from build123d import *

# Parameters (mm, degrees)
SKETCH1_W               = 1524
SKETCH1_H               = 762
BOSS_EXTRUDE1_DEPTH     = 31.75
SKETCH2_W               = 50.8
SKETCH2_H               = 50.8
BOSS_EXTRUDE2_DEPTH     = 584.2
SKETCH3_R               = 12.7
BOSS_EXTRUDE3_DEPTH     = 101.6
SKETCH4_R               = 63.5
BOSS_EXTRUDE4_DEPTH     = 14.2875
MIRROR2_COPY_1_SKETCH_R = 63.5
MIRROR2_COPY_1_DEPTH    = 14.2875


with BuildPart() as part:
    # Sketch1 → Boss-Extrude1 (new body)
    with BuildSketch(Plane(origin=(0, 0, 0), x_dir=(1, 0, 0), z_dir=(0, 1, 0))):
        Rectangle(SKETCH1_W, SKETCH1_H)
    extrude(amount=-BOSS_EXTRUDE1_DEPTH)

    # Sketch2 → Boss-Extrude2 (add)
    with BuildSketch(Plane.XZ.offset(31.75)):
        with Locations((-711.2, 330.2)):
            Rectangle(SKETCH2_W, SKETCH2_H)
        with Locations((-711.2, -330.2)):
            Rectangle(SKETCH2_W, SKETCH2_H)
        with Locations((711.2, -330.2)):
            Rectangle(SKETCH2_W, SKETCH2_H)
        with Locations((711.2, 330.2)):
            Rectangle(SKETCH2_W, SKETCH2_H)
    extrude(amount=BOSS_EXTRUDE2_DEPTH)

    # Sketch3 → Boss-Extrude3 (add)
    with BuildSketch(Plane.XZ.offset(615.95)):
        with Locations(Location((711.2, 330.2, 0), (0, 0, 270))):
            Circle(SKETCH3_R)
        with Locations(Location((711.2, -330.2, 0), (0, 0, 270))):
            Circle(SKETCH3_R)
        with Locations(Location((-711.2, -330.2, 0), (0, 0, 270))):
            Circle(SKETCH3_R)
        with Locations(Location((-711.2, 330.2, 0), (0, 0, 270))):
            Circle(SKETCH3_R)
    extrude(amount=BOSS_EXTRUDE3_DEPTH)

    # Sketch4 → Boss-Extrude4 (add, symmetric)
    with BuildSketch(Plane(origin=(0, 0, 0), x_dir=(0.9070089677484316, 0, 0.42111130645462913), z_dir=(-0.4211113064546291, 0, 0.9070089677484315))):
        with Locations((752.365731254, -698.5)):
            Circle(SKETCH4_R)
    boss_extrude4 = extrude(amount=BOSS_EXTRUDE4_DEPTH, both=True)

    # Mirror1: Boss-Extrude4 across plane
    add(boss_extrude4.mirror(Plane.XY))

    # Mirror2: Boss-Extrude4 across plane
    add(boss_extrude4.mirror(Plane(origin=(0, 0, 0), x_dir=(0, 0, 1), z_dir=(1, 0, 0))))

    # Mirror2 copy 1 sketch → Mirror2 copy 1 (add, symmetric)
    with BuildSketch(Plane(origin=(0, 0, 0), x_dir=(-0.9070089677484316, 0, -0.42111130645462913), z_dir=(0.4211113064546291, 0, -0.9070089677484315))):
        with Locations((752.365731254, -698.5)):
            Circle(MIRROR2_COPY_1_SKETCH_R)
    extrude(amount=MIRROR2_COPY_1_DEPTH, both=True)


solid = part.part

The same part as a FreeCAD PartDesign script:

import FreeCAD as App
import Part
import Sketcher

V = App.Vector
Q = App.Units.Quantity


def add_polygon(sketch, points):
    """Adds a closed chain of lines whose ends are joined by coincident constraints."""
    first, n = sketch.GeometryCount, len(points)
    for a, b in zip(points, points[1:] + points[:1]):
        sketch.addGeometry(Part.LineSegment(App.Vector(*a, 0), App.Vector(*b, 0)), False)
    for i in range(n):
        sketch.addConstraint(Sketcher.Constraint("Coincident", first + i, 2, first + (i + 1) % n, 1))

doc = App.newDocument("Part")
body = doc.addObject("PartDesign::Body", "Body")

# Sketch on XZ plane
sketch1 = doc.addObject("Sketcher::SketchObject", "Sketch")
body.addObject(sketch1)
sketch1.AttachmentSupport = (doc.XZ_Plane, [""])
sketch1.MapMode = "FlatFace"
add_polygon(sketch1, [(-762, -381), (-762, 381), (762, 381), (762, -381)])  # lines 0-3
sketch1.addConstraint(Sketcher.Constraint("Vertical", 0))
sketch1.addConstraint(Sketcher.Constraint("Horizontal", 1))
sketch1.addConstraint(Sketcher.Constraint("Vertical", 2))
sketch1.addConstraint(Sketcher.Constraint("Horizontal", 3))
sketch1.addConstraint(Sketcher.Constraint("Symmetric", 0, 2, 2, 2, -1, 1))
sketch1.addConstraint(Sketcher.Constraint("DistanceX", 1, 1, 1, 2, Q("60 in")))
sketch1.addConstraint(Sketcher.Constraint("DistanceY", 0, 1, 0, 2, Q("30 in")))
pad1 = doc.addObject("PartDesign::Pad", "Pad")
body.addObject(pad1)
pad1.Profile = sketch1
pad1.Length = Q("1.25 in")

# Sketch on XZ plane
sketch2 = doc.addObject("Sketcher::SketchObject", "Sketch001")
body.addObject(sketch2)
sketch2.AttachmentSupport = (doc.XZ_Plane, [""])
sketch2.MapMode = "FlatFace"
sketch2.AttachmentOffset = App.Placement(V(0, 0, 1.25 * 25.4), App.Rotation())
add_polygon(sketch2, [(-737, 356), (-737, 305), (-686, 305), (-686, 356)])  # lines 0-3
add_polygon(sketch2, [(-737, -305), (-737, -356), (-686, -356), (-686, -305)])  # lines 4-7
add_polygon(sketch2, [(686, -305), (686, -356), (737, -356), (737, -305)])  # lines 8-11
add_polygon(sketch2, [(686, 356), (686, 305), (737, 305), (737, 356)])  # lines 12-15
sketch2.addConstraint(Sketcher.Constraint("Vertical", 0))
sketch2.addConstraint(Sketcher.Constraint("Horizontal", 1))
sketch2.addConstraint(Sketcher.Constraint("Vertical", 2))
sketch2.addConstraint(Sketcher.Constraint("Horizontal", 3))
sketch2.addConstraint(Sketcher.Constraint("Vertical", 4))
sketch2.addConstraint(Sketcher.Constraint("Horizontal", 5))
sketch2.addConstraint(Sketcher.Constraint("Vertical", 6))
sketch2.addConstraint(Sketcher.Constraint("Horizontal", 7))
sketch2.addConstraint(Sketcher.Constraint("Vertical", 8))
sketch2.addConstraint(Sketcher.Constraint("Horizontal", 9))
sketch2.addConstraint(Sketcher.Constraint("Vertical", 10))
sketch2.addConstraint(Sketcher.Constraint("Horizontal", 11))
sketch2.addConstraint(Sketcher.Constraint("Vertical", 12))
sketch2.addConstraint(Sketcher.Constraint("Horizontal", 13))
sketch2.addConstraint(Sketcher.Constraint("Vertical", 14))
sketch2.addConstraint(Sketcher.Constraint("Horizontal", 15))
sketch2.addConstraint(Sketcher.Constraint("Symmetric", 2, 2, 8, 2, -1, 1))
sketch2.addConstraint(Sketcher.Constraint("Symmetric", 0, 2, 10, 2, -1, 1))
sketch2.addConstraint(Sketcher.Constraint("Symmetric", 6, 2, 12, 2, -1, 1))
sketch2.addConstraint(Sketcher.Constraint("Symmetric", 4, 2, 14, 2, -1, 1))
sketch2.addConstraint(Sketcher.Constraint("Symmetric", 5, 2, 8, 2, -2))
sketch2.addConstraint(Sketcher.Constraint("Symmetric", 7, 2, 10, 2, -2))
sketch2.addConstraint(Sketcher.Constraint("Equal", 15, 0))
sketch2.addConstraint(Sketcher.Constraint("DistanceX", 1, 1, 1, 2, Q("2 in")))
sketch2.addConstraint(Sketcher.Constraint("DistanceX", 0, 2, -1, 1, Q("29 in")))
sketch2.addConstraint(Sketcher.Constraint("DistanceY", -1, 1, 0, 2, Q("12 in")))
pad2 = doc.addObject("PartDesign::Pad", "Pad001")
body.addObject(pad2)
pad2.Profile = sketch2
pad2.Length = Q("23 in")

# Sketch on XZ plane
sketch3 = doc.addObject("Sketcher::SketchObject", "Sketch002")
body.addObject(sketch3)
sketch3.AttachmentSupport = (doc.XZ_Plane, [""])
sketch3.MapMode = "FlatFace"
sketch3.AttachmentOffset = App.Placement(V(0, 0, 24.25 * 25.4), App.Rotation())
sketch3.addGeometry(Part.Circle(V(711, 330, 0), V(0, 0, 1), 13), False)
sketch3.addGeometry(Part.Circle(V(711, -330, 0), V(0, 0, 1), 13), False)
sketch3.addGeometry(Part.Circle(V(-711, -330, 0), V(0, 0, 1), 13), False)
sketch3.addGeometry(Part.Circle(V(-711, 330, 0), V(0, 0, 1), 13), False)
sketch3.addConstraint(Sketcher.Constraint("Equal", 0, 1))
sketch3.addConstraint(Sketcher.Constraint("Equal", 1, 2))
sketch3.addConstraint(Sketcher.Constraint("Equal", 2, 3))
sketch3.addConstraint(Sketcher.Constraint("Symmetric", 0, 3, 2, 3, -1, 1))
sketch3.addConstraint(Sketcher.Constraint("Symmetric", 1, 3, 3, 3, -1, 1))
sketch3.addConstraint(Sketcher.Constraint("Symmetric", 1, 3, 2, 3, -2))
sketch3.addConstraint(Sketcher.Constraint("Diameter", 0, Q("1 in")))
sketch3.addConstraint(Sketcher.Constraint("DistanceX", -1, 1, 0, 3, Q("28 in")))
sketch3.addConstraint(Sketcher.Constraint("DistanceY", -1, 1, 0, 3, Q("13 in")))
pad3 = doc.addObject("PartDesign::Pad", "Pad002")
body.addObject(pad3)
pad3.Profile = sketch3
pad3.Length = Q("4 in")

# Sketch on an angled plane
sketch4 = doc.addObject("Sketcher::SketchObject", "Sketch003")
body.addObject(sketch4)
sketch4.Placement = App.Placement(V(0, 0, 0), App.Rotation(V(0.907008968, 0, 0.421111306), V(0, 1, 0), V(-0.421111306, 0, 0.907008968), "ZXY"))
sketch4.addGeometry(Part.Circle(V(752, -699, 0), V(0, 0, 1), 64), False)
sketch4.addConstraint(Sketcher.Constraint("Diameter", 0, Q("5 in")))
sketch4.addConstraint(Sketcher.Constraint("DistanceY", 0, 3, -1, 1, Q("27.5 in")))
sketch4.addConstraint(Sketcher.Constraint("DistanceX", -1, 1, 0, 3, Q("752.365731 mm")))
pad4 = doc.addObject("PartDesign::Pad", "Pad003")
body.addObject(pad4)
pad4.Profile = sketch4
pad4.Length = Q("1.125 in")
pad4.Midplane = True
doc.recompute()

mirrored = doc.addObject("PartDesign::Mirrored", "Mirrored")
body.addObject(mirrored)
mirrored.Originals = [pad4]
mirrored.MirrorPlane = (doc.XY_Plane, [""])
body.Tip = mirrored
doc.recompute()

mirrored2 = doc.addObject("PartDesign::Mirrored", "Mirrored001")
body.addObject(mirrored2)
mirrored2.Originals = [pad4]
mirrored2.MirrorPlane = (doc.YZ_Plane, [""])
body.Tip = mirrored2

# Sketch on an angled plane
sketch5 = doc.addObject("Sketcher::SketchObject", "Sketch004")
body.addObject(sketch5)
sketch5.Placement = App.Placement(V(0, 0, 0), App.Rotation(V(-0.907008968, 0, -0.421111306), V(0, 1, 0), V(0.421111306, 0, -0.907008968), "ZXY"))
sketch5.addGeometry(Part.Circle(V(752, -699, 0), V(0, 0, 1), 64), False)
sketch5.addConstraint(Sketcher.Constraint("Diameter", 0, Q("5 in")))
sketch5.addConstraint(Sketcher.Constraint("DistanceY", 0, 3, -1, 1, Q("27.5 in")))
sketch5.addConstraint(Sketcher.Constraint("DistanceX", -1, 1, 0, 3, Q("752.365731 mm")))
pad5 = doc.addObject("PartDesign::Pad", "Pad004")
body.addObject(pad5)
pad5.Profile = sketch5
pad5.Length = Q("1.125 in")
pad5.Midplane = True

doc.recompute()
